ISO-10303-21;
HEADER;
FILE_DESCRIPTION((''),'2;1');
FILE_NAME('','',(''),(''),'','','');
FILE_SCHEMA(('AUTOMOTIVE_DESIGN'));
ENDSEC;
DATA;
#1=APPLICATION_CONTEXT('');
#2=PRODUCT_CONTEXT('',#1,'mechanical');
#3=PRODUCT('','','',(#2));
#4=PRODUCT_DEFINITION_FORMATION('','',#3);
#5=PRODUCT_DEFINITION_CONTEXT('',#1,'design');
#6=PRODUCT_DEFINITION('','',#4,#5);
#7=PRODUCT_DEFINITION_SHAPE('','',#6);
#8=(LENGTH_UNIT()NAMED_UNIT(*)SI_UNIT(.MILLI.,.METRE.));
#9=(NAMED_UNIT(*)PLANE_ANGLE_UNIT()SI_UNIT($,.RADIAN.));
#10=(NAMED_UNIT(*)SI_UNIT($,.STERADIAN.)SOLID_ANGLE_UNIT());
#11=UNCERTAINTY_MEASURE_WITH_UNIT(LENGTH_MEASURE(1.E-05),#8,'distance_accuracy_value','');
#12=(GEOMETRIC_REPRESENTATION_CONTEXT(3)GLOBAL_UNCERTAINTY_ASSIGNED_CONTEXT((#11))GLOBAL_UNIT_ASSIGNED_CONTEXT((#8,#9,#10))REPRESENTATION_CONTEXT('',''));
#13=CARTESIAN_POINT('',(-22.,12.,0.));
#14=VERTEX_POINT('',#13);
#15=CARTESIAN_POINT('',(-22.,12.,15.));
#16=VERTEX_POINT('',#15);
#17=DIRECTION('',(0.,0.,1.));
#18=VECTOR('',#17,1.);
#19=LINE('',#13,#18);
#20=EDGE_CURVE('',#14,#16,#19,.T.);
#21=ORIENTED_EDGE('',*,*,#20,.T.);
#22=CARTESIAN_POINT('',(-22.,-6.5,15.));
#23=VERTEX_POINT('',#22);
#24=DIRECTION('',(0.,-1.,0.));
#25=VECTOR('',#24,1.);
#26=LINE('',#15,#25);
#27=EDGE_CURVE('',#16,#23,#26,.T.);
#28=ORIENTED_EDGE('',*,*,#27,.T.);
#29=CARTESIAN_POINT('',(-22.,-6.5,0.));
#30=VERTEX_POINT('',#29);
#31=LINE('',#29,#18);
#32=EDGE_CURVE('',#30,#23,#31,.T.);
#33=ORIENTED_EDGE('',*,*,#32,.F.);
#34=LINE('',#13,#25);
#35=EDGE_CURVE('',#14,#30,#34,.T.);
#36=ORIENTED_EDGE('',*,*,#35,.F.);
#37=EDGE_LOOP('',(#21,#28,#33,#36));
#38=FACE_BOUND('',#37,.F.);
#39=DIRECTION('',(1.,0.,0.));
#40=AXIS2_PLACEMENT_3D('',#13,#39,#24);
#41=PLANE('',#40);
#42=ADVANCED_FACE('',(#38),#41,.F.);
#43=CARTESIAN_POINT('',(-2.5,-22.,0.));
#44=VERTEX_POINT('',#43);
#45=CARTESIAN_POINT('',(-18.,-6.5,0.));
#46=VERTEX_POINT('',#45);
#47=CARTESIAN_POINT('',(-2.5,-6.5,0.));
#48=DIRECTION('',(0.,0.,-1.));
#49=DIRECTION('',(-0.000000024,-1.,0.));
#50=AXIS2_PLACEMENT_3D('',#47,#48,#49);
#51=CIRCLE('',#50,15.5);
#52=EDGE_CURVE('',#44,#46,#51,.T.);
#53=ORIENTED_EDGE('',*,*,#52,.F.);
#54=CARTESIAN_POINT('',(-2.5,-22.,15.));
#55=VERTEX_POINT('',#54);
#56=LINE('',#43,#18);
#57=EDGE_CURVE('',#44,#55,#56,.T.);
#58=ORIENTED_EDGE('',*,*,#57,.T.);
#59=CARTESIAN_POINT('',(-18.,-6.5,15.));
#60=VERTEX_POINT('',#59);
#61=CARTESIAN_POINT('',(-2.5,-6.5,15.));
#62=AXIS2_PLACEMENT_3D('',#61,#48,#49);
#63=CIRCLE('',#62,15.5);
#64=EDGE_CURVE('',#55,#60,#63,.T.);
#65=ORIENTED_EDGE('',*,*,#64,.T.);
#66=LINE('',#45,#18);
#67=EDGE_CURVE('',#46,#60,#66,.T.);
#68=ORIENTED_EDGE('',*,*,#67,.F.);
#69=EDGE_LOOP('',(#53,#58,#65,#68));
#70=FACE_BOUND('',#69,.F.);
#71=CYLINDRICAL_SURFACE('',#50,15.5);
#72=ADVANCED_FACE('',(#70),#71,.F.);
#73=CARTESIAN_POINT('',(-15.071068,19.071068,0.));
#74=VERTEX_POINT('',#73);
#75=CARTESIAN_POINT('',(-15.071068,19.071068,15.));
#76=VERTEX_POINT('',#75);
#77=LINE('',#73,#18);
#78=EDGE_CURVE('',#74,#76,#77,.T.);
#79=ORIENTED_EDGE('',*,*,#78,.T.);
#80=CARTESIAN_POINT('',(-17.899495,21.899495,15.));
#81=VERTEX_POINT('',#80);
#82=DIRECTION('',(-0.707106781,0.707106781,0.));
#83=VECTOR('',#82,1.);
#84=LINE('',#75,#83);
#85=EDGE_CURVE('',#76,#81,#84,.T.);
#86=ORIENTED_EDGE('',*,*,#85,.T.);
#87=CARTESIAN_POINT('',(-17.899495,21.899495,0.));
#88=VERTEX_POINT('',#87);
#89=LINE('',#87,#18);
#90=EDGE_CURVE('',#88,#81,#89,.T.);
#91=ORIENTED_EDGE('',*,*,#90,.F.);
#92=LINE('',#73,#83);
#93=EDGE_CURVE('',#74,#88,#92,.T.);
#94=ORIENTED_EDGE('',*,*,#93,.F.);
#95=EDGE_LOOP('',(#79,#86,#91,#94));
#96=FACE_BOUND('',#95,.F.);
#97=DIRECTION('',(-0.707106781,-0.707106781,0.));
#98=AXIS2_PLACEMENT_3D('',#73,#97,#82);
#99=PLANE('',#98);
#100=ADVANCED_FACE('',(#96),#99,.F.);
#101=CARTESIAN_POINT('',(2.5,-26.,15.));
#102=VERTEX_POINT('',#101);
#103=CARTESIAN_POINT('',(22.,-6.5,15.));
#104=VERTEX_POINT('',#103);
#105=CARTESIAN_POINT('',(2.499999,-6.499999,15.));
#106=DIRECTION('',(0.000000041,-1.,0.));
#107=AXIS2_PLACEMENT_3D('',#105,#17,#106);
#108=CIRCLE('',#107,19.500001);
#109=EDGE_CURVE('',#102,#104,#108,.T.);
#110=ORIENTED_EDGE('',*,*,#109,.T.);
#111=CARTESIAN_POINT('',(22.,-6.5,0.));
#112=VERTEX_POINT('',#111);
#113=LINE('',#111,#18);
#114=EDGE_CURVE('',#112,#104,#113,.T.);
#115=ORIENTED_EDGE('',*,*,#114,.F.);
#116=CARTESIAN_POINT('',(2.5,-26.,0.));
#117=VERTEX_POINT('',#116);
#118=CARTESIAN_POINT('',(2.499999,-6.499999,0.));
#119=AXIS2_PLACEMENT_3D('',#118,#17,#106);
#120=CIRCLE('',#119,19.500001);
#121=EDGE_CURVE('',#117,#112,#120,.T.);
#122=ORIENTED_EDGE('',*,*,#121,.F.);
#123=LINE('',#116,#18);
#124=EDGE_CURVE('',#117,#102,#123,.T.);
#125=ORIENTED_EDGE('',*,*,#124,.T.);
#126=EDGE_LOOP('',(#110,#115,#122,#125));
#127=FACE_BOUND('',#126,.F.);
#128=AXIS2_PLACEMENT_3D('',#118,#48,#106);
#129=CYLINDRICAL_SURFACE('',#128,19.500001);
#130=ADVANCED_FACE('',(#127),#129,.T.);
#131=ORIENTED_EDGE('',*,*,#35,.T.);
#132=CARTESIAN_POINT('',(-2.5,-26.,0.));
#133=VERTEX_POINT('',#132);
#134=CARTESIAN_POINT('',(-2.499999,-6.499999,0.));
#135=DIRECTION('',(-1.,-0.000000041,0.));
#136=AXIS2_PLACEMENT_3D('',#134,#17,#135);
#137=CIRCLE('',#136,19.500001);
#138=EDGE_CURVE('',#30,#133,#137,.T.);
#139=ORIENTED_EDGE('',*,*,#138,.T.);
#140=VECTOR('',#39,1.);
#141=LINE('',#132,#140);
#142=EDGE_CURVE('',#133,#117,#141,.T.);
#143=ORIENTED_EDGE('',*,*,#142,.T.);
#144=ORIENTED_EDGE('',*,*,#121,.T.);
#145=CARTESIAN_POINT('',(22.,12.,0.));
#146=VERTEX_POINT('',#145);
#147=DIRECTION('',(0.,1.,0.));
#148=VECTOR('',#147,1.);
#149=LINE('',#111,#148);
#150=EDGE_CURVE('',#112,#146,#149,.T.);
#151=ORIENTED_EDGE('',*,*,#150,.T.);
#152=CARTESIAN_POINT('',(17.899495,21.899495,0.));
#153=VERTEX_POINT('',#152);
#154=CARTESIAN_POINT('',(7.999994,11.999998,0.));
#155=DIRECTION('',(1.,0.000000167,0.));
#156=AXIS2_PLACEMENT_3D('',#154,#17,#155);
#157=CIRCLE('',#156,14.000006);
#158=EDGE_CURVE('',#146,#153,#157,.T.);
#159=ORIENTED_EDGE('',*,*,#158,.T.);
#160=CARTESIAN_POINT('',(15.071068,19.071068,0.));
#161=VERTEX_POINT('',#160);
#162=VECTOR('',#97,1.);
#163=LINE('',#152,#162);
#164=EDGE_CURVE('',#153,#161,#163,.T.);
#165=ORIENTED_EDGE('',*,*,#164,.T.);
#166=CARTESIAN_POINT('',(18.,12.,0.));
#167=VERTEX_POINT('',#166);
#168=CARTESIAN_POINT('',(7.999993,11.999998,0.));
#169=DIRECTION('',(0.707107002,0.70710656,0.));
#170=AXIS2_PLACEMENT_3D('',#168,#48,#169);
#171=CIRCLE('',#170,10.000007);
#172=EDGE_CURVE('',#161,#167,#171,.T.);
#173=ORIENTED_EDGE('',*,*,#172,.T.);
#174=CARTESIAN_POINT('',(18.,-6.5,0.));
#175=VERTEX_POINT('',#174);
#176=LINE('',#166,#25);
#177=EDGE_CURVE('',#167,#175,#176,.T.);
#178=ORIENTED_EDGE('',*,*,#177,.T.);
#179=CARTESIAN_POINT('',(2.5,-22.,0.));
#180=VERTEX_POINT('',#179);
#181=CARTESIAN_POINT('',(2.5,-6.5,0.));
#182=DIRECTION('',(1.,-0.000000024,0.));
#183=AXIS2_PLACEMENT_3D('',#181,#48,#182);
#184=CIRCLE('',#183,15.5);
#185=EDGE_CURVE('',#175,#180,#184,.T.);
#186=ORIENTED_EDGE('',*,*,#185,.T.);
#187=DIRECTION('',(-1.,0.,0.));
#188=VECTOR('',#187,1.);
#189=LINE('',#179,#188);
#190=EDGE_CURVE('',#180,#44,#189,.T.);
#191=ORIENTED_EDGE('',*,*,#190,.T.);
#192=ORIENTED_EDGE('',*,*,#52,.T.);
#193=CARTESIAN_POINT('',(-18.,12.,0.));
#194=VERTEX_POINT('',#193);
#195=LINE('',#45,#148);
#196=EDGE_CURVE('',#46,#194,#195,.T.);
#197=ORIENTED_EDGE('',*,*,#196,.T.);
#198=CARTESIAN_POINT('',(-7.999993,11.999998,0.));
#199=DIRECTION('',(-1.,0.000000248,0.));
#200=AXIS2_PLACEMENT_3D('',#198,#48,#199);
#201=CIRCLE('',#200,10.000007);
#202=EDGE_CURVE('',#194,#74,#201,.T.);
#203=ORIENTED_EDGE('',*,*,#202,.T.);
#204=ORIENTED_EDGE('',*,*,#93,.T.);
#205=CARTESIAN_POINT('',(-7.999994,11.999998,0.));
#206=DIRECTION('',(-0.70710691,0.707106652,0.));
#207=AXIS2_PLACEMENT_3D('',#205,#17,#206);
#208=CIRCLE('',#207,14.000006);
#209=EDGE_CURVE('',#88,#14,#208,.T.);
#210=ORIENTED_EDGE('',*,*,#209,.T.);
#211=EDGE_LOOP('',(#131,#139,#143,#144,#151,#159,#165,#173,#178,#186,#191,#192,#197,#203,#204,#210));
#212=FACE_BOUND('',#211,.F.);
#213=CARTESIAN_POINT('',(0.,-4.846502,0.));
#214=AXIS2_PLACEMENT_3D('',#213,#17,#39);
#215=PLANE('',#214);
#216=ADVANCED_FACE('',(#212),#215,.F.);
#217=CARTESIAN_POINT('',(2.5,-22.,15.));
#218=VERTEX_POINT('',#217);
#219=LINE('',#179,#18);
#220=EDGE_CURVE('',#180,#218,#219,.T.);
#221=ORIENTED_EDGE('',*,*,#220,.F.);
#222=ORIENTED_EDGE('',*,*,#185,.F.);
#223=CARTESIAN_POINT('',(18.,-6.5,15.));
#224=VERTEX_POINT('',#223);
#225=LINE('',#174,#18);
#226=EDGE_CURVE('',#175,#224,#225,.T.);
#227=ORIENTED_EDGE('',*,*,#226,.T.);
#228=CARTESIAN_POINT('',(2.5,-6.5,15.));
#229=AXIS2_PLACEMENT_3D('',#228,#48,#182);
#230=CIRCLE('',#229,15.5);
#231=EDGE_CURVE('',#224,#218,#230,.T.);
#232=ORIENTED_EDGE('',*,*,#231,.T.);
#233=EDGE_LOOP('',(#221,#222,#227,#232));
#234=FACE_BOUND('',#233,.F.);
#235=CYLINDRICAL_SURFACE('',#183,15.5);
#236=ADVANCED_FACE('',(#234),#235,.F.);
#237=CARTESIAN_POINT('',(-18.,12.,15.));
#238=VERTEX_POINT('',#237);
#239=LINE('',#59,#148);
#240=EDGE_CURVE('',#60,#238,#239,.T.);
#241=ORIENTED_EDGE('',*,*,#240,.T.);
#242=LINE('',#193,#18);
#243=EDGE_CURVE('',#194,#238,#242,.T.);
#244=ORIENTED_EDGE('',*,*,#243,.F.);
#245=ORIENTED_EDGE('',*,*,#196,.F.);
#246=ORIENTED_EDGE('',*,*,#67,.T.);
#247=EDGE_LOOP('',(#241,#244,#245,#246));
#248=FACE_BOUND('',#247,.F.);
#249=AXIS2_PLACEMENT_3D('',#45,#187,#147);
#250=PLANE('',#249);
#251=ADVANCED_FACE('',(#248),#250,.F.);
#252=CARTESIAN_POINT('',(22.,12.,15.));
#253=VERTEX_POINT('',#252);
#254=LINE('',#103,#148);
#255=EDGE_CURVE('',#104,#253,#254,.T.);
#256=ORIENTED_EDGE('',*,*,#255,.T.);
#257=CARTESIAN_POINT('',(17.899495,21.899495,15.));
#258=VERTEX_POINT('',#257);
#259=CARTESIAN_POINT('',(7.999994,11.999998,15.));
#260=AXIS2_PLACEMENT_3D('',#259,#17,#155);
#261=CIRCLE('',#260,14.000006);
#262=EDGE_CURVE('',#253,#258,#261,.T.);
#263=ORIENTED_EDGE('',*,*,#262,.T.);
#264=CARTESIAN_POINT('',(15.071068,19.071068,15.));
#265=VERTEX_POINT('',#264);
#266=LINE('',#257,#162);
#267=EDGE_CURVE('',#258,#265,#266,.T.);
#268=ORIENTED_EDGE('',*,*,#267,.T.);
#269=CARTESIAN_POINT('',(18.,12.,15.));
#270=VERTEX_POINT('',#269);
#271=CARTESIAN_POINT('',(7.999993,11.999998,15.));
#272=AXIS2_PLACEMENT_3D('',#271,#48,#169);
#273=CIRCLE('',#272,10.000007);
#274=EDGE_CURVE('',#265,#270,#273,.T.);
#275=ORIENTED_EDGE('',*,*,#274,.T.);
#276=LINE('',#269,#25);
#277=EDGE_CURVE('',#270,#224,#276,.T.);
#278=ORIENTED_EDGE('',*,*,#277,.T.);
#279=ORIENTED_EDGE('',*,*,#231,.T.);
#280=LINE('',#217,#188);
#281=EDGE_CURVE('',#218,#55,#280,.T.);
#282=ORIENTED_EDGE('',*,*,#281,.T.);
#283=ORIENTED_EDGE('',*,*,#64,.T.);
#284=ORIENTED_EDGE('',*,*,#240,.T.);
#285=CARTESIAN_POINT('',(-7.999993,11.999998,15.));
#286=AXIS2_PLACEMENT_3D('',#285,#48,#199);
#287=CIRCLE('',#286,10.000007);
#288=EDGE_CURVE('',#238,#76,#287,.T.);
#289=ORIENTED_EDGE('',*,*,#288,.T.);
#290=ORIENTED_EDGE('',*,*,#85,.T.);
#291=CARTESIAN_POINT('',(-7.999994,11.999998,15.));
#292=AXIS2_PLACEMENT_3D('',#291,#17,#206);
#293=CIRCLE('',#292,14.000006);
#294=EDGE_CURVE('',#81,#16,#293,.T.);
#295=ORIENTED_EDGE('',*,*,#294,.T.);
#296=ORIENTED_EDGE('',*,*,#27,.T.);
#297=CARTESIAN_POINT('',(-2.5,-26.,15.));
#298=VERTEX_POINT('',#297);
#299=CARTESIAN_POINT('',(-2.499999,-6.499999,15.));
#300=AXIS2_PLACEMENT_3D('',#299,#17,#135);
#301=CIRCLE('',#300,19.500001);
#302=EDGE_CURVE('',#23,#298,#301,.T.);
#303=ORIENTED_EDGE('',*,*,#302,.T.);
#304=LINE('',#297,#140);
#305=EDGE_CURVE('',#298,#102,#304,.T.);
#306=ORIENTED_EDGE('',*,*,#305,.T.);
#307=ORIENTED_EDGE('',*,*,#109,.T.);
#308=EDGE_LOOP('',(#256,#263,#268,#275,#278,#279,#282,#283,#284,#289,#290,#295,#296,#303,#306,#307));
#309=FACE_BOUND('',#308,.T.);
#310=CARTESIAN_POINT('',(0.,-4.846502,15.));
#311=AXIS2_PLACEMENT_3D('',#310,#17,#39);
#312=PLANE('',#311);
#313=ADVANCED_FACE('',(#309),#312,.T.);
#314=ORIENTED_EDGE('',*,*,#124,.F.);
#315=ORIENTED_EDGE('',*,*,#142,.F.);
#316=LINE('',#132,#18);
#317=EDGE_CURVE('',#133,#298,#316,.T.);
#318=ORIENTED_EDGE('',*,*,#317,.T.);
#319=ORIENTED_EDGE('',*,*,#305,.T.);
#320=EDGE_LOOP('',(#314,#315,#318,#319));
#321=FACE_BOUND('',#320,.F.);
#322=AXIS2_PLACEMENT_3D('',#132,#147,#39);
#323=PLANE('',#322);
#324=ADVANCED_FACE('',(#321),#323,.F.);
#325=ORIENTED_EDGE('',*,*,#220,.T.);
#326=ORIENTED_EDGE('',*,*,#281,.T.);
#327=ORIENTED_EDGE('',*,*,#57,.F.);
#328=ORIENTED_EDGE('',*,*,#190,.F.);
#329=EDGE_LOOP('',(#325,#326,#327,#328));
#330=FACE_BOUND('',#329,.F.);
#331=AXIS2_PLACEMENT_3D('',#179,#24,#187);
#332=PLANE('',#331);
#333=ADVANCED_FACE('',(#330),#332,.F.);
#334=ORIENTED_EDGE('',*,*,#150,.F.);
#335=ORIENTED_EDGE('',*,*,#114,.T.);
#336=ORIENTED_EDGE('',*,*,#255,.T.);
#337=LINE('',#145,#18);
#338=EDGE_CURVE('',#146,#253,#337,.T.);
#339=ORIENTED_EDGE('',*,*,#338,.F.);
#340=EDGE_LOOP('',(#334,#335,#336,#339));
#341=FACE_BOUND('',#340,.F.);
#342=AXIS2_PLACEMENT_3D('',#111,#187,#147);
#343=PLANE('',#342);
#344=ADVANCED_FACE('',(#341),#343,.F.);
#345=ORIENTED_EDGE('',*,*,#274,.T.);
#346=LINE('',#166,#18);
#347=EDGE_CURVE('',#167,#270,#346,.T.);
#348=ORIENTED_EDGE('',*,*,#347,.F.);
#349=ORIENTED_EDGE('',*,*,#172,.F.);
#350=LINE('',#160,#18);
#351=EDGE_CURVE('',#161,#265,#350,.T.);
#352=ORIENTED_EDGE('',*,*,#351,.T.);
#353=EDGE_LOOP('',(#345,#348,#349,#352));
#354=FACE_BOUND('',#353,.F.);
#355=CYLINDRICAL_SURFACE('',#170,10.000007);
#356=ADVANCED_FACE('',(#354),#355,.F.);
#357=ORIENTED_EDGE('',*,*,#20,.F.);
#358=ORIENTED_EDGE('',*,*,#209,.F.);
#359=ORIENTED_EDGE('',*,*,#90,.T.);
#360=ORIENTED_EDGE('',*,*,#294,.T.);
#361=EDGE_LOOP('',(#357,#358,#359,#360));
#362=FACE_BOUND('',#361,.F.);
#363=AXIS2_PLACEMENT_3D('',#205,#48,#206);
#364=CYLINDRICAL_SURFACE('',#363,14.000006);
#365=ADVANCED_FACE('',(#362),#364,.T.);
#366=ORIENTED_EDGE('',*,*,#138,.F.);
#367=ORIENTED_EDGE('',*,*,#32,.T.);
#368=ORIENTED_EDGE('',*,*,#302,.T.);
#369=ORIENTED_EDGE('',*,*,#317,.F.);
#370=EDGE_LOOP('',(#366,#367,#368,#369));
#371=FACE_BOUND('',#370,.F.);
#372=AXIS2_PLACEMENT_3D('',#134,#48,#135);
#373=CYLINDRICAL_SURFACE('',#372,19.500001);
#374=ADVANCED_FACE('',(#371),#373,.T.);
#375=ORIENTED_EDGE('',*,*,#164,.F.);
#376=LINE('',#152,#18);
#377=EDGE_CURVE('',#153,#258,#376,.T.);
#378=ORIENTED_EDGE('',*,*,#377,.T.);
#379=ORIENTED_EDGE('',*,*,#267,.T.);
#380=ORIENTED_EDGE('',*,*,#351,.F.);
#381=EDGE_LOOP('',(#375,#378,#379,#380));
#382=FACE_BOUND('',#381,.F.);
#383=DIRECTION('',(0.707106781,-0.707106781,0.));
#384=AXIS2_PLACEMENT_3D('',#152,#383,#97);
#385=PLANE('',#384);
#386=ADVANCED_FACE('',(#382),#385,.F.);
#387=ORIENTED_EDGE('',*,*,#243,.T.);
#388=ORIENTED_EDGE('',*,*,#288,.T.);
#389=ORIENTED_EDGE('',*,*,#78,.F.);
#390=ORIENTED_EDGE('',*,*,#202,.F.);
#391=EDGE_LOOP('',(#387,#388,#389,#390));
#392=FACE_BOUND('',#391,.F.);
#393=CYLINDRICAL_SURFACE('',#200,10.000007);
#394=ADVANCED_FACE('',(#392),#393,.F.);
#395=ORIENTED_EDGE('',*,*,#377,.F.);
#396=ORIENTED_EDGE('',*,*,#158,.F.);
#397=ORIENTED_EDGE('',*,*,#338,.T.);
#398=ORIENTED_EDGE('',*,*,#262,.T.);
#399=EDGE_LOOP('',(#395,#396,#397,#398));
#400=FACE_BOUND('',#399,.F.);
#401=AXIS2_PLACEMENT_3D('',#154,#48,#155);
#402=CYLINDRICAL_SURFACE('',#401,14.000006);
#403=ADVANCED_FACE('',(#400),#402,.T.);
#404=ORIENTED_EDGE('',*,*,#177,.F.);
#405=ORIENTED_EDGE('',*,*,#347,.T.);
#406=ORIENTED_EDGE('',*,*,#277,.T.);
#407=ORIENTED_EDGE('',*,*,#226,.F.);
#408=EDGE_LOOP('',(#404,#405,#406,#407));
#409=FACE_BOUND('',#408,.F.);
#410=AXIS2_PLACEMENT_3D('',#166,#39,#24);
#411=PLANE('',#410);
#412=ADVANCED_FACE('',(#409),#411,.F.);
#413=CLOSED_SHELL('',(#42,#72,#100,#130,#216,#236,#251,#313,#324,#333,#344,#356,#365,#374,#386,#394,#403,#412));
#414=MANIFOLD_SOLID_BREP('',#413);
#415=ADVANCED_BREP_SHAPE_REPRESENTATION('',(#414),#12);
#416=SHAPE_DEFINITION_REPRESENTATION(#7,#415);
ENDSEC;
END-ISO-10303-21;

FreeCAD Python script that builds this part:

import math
import FreeCAD as App
import Part
import Sketcher
Q = App.Units.Quantity

doc = App.newDocument("Part")
body = doc.addObject("PartDesign::Body", "Body")

sketch1 = body.newObject("Sketcher::SketchObject", "Sketch")
sketch1.AttachmentSupport = (doc.getObject("XY_Plane"), [""])
sketch1.MapMode = "FlatFace"
sketch1.addGeometry([
    Part.ArcOfCircle(Part.Circle(App.Vector(-7.999993, 11.999998, 0), App.Vector(0, 0, 1), 10.000007), math.radians(135.000018), math.radians(179.999986)),
    Part.LineSegment(App.Vector(-15.071068, 19.071068, 0), App.Vector(-17.899495, 21.899495, 0)),
    Part.ArcOfCircle(Part.Circle(App.Vector(-7.999994, 11.999998, 0), App.Vector(0, 0, 1), 14.000006), math.radians(135.00001), math.radians(179.99999)),
    Part.LineSegment(App.Vector(-22, 12, 0), App.Vector(-22, -6.5, 0)),
    Part.ArcOfCircle(Part.Circle(App.Vector(-2.499999, -6.499999, 0), App.Vector(0, 0, 1), 19.500001), math.radians(-179.999998), math.radians(-90.000002)),
    Part.LineSegment(App.Vector(-2.5, -26, 0), App.Vector(2.5, -26, 0)),
    Part.ArcOfCircle(Part.Circle(App.Vector(2.499999, -6.499999, 0), App.Vector(0, 0, 1), 19.500001), math.radians(-89.999998), math.radians(-0.000002)),
    Part.LineSegment(App.Vector(22, -6.5, 0), App.Vector(22, 12, 0)),
    Part.ArcOfCircle(Part.Circle(App.Vector(7.999994, 11.999998, 0), App.Vector(0, 0, 1), 14.000006), math.radians(0.00001), math.radians(44.99999)),
    Part.LineSegment(App.Vector(17.899495, 21.899495, 0), App.Vector(15.071068, 19.071068, 0)),
    Part.ArcOfCircle(Part.Circle(App.Vector(7.999993, 11.999998, 0), App.Vector(0, 0, 1), 10.000007), math.radians(0.000014), math.radians(44.999982)),
    Part.LineSegment(App.Vector(18, 12, 0), App.Vector(18, -6.5, 0)),
    Part.ArcOfCircle(Part.Circle(App.Vector(2.5, -6.5, 0), App.Vector(0, 0, 1), 15.5), math.radians(-89.999999), math.radians(-0.000001)),
    Part.LineSegment(App.Vector(2.5, -22, 0), App.Vector(-2.5, -22, 0)),
    Part.ArcOfCircle(Part.Circle(App.Vector(-2.5, -6.5, 0), App.Vector(0, 0, 1), 15.5), math.radians(-179.999999), math.radians(-90.000001)),
    Part.LineSegment(App.Vector(-18, -6.5, 0), App.Vector(-18, 12, 0)),
], False)
sketch1.addConstraint([
    Sketcher.Constraint("Coincident", 0, 1, 1, 1),
    Sketcher.Constraint("Coincident", 1, 2, 2, 1),
    Sketcher.Constraint("Tangent", 2, 2, 3, 1),
    Sketcher.Constraint("Tangent", 3, 2, 4, 1),
    Sketcher.Constraint("Tangent", 4, 2, 5, 1),
    Sketcher.Constraint("Tangent", 5, 2, 6, 1),
    Sketcher.Constraint("Tangent", 6, 2, 7, 1),
    Sketcher.Constraint("Tangent", 7, 2, 8, 1),
    Sketcher.Constraint("Coincident", 8, 2, 9, 1),
    Sketcher.Constraint("Coincident", 9, 2, 10, 2),
    Sketcher.Constraint("Tangent", 10, 1, 11, 1),
    Sketcher.Constraint("Tangent", 11, 2, 12, 2),
    Sketcher.Constraint("Tangent", 12, 1, 13, 1),
    Sketcher.Constraint("Tangent", 13, 2, 14, 2),
    Sketcher.Constraint("Tangent", 14, 1, 15, 1),
    Sketcher.Constraint("Tangent", 15, 2, 0, 2),
    Sketcher.Constraint("Vertical", 3),
    Sketcher.Constraint("Horizontal", 5),
    Sketcher.Constraint("Vertical", 7),
    Sketcher.Constraint("Vertical", 11),
    Sketcher.Constraint("Horizontal", 13),
    Sketcher.Constraint("Vertical", 15),
    Sketcher.Constraint("Coincident", 2, 3, 0, 3),
    Sketcher.Constraint("Coincident", 10, 3, 8, 3),
    Sketcher.Constraint("Coincident", 12, 3, 6, 3),
    Sketcher.Constraint("Coincident", 14, 3, 4, 3),
    Sketcher.Constraint("Equal", 4, 6),
    Sketcher.Constraint("Equal", 2, 8),
    Sketcher.Constraint("Symmetric", 0, 3, 8, 3, -2),
    Sketcher.Constraint("Perpendicular", 1, 9),
    Sketcher.Constraint("Horizontal", 1, 2, 8, 2),
    Sketcher.Constraint("Horizontal", 0, 1, 9, 2),
    Sketcher.Constraint("Radius", 4, Q("19.500001 mm")),
    Sketcher.Constraint("Radius", 12, Q("15.5 mm")),
    Sketcher.Constraint("DistanceX", 5, 1, 5, 2, Q("5 mm")),
    Sketcher.Constraint("DistanceY", 3, 2, 3, 1, Q("18.5 mm")),
    Sketcher.Constraint("DistanceY", -1, 1, 2, 2, Q("12 mm")),
    Sketcher.Constraint("Radius", 0, Q("10.000007 mm")),
    Sketcher.Constraint("DistanceX", 1, 2, 2, 3, Q("9.899501 mm")),
])
pad1 = body.newObject("PartDesign::Pad", "Pad")
pad1.Profile = sketch1
pad1.Length = 15

doc.recompute()
